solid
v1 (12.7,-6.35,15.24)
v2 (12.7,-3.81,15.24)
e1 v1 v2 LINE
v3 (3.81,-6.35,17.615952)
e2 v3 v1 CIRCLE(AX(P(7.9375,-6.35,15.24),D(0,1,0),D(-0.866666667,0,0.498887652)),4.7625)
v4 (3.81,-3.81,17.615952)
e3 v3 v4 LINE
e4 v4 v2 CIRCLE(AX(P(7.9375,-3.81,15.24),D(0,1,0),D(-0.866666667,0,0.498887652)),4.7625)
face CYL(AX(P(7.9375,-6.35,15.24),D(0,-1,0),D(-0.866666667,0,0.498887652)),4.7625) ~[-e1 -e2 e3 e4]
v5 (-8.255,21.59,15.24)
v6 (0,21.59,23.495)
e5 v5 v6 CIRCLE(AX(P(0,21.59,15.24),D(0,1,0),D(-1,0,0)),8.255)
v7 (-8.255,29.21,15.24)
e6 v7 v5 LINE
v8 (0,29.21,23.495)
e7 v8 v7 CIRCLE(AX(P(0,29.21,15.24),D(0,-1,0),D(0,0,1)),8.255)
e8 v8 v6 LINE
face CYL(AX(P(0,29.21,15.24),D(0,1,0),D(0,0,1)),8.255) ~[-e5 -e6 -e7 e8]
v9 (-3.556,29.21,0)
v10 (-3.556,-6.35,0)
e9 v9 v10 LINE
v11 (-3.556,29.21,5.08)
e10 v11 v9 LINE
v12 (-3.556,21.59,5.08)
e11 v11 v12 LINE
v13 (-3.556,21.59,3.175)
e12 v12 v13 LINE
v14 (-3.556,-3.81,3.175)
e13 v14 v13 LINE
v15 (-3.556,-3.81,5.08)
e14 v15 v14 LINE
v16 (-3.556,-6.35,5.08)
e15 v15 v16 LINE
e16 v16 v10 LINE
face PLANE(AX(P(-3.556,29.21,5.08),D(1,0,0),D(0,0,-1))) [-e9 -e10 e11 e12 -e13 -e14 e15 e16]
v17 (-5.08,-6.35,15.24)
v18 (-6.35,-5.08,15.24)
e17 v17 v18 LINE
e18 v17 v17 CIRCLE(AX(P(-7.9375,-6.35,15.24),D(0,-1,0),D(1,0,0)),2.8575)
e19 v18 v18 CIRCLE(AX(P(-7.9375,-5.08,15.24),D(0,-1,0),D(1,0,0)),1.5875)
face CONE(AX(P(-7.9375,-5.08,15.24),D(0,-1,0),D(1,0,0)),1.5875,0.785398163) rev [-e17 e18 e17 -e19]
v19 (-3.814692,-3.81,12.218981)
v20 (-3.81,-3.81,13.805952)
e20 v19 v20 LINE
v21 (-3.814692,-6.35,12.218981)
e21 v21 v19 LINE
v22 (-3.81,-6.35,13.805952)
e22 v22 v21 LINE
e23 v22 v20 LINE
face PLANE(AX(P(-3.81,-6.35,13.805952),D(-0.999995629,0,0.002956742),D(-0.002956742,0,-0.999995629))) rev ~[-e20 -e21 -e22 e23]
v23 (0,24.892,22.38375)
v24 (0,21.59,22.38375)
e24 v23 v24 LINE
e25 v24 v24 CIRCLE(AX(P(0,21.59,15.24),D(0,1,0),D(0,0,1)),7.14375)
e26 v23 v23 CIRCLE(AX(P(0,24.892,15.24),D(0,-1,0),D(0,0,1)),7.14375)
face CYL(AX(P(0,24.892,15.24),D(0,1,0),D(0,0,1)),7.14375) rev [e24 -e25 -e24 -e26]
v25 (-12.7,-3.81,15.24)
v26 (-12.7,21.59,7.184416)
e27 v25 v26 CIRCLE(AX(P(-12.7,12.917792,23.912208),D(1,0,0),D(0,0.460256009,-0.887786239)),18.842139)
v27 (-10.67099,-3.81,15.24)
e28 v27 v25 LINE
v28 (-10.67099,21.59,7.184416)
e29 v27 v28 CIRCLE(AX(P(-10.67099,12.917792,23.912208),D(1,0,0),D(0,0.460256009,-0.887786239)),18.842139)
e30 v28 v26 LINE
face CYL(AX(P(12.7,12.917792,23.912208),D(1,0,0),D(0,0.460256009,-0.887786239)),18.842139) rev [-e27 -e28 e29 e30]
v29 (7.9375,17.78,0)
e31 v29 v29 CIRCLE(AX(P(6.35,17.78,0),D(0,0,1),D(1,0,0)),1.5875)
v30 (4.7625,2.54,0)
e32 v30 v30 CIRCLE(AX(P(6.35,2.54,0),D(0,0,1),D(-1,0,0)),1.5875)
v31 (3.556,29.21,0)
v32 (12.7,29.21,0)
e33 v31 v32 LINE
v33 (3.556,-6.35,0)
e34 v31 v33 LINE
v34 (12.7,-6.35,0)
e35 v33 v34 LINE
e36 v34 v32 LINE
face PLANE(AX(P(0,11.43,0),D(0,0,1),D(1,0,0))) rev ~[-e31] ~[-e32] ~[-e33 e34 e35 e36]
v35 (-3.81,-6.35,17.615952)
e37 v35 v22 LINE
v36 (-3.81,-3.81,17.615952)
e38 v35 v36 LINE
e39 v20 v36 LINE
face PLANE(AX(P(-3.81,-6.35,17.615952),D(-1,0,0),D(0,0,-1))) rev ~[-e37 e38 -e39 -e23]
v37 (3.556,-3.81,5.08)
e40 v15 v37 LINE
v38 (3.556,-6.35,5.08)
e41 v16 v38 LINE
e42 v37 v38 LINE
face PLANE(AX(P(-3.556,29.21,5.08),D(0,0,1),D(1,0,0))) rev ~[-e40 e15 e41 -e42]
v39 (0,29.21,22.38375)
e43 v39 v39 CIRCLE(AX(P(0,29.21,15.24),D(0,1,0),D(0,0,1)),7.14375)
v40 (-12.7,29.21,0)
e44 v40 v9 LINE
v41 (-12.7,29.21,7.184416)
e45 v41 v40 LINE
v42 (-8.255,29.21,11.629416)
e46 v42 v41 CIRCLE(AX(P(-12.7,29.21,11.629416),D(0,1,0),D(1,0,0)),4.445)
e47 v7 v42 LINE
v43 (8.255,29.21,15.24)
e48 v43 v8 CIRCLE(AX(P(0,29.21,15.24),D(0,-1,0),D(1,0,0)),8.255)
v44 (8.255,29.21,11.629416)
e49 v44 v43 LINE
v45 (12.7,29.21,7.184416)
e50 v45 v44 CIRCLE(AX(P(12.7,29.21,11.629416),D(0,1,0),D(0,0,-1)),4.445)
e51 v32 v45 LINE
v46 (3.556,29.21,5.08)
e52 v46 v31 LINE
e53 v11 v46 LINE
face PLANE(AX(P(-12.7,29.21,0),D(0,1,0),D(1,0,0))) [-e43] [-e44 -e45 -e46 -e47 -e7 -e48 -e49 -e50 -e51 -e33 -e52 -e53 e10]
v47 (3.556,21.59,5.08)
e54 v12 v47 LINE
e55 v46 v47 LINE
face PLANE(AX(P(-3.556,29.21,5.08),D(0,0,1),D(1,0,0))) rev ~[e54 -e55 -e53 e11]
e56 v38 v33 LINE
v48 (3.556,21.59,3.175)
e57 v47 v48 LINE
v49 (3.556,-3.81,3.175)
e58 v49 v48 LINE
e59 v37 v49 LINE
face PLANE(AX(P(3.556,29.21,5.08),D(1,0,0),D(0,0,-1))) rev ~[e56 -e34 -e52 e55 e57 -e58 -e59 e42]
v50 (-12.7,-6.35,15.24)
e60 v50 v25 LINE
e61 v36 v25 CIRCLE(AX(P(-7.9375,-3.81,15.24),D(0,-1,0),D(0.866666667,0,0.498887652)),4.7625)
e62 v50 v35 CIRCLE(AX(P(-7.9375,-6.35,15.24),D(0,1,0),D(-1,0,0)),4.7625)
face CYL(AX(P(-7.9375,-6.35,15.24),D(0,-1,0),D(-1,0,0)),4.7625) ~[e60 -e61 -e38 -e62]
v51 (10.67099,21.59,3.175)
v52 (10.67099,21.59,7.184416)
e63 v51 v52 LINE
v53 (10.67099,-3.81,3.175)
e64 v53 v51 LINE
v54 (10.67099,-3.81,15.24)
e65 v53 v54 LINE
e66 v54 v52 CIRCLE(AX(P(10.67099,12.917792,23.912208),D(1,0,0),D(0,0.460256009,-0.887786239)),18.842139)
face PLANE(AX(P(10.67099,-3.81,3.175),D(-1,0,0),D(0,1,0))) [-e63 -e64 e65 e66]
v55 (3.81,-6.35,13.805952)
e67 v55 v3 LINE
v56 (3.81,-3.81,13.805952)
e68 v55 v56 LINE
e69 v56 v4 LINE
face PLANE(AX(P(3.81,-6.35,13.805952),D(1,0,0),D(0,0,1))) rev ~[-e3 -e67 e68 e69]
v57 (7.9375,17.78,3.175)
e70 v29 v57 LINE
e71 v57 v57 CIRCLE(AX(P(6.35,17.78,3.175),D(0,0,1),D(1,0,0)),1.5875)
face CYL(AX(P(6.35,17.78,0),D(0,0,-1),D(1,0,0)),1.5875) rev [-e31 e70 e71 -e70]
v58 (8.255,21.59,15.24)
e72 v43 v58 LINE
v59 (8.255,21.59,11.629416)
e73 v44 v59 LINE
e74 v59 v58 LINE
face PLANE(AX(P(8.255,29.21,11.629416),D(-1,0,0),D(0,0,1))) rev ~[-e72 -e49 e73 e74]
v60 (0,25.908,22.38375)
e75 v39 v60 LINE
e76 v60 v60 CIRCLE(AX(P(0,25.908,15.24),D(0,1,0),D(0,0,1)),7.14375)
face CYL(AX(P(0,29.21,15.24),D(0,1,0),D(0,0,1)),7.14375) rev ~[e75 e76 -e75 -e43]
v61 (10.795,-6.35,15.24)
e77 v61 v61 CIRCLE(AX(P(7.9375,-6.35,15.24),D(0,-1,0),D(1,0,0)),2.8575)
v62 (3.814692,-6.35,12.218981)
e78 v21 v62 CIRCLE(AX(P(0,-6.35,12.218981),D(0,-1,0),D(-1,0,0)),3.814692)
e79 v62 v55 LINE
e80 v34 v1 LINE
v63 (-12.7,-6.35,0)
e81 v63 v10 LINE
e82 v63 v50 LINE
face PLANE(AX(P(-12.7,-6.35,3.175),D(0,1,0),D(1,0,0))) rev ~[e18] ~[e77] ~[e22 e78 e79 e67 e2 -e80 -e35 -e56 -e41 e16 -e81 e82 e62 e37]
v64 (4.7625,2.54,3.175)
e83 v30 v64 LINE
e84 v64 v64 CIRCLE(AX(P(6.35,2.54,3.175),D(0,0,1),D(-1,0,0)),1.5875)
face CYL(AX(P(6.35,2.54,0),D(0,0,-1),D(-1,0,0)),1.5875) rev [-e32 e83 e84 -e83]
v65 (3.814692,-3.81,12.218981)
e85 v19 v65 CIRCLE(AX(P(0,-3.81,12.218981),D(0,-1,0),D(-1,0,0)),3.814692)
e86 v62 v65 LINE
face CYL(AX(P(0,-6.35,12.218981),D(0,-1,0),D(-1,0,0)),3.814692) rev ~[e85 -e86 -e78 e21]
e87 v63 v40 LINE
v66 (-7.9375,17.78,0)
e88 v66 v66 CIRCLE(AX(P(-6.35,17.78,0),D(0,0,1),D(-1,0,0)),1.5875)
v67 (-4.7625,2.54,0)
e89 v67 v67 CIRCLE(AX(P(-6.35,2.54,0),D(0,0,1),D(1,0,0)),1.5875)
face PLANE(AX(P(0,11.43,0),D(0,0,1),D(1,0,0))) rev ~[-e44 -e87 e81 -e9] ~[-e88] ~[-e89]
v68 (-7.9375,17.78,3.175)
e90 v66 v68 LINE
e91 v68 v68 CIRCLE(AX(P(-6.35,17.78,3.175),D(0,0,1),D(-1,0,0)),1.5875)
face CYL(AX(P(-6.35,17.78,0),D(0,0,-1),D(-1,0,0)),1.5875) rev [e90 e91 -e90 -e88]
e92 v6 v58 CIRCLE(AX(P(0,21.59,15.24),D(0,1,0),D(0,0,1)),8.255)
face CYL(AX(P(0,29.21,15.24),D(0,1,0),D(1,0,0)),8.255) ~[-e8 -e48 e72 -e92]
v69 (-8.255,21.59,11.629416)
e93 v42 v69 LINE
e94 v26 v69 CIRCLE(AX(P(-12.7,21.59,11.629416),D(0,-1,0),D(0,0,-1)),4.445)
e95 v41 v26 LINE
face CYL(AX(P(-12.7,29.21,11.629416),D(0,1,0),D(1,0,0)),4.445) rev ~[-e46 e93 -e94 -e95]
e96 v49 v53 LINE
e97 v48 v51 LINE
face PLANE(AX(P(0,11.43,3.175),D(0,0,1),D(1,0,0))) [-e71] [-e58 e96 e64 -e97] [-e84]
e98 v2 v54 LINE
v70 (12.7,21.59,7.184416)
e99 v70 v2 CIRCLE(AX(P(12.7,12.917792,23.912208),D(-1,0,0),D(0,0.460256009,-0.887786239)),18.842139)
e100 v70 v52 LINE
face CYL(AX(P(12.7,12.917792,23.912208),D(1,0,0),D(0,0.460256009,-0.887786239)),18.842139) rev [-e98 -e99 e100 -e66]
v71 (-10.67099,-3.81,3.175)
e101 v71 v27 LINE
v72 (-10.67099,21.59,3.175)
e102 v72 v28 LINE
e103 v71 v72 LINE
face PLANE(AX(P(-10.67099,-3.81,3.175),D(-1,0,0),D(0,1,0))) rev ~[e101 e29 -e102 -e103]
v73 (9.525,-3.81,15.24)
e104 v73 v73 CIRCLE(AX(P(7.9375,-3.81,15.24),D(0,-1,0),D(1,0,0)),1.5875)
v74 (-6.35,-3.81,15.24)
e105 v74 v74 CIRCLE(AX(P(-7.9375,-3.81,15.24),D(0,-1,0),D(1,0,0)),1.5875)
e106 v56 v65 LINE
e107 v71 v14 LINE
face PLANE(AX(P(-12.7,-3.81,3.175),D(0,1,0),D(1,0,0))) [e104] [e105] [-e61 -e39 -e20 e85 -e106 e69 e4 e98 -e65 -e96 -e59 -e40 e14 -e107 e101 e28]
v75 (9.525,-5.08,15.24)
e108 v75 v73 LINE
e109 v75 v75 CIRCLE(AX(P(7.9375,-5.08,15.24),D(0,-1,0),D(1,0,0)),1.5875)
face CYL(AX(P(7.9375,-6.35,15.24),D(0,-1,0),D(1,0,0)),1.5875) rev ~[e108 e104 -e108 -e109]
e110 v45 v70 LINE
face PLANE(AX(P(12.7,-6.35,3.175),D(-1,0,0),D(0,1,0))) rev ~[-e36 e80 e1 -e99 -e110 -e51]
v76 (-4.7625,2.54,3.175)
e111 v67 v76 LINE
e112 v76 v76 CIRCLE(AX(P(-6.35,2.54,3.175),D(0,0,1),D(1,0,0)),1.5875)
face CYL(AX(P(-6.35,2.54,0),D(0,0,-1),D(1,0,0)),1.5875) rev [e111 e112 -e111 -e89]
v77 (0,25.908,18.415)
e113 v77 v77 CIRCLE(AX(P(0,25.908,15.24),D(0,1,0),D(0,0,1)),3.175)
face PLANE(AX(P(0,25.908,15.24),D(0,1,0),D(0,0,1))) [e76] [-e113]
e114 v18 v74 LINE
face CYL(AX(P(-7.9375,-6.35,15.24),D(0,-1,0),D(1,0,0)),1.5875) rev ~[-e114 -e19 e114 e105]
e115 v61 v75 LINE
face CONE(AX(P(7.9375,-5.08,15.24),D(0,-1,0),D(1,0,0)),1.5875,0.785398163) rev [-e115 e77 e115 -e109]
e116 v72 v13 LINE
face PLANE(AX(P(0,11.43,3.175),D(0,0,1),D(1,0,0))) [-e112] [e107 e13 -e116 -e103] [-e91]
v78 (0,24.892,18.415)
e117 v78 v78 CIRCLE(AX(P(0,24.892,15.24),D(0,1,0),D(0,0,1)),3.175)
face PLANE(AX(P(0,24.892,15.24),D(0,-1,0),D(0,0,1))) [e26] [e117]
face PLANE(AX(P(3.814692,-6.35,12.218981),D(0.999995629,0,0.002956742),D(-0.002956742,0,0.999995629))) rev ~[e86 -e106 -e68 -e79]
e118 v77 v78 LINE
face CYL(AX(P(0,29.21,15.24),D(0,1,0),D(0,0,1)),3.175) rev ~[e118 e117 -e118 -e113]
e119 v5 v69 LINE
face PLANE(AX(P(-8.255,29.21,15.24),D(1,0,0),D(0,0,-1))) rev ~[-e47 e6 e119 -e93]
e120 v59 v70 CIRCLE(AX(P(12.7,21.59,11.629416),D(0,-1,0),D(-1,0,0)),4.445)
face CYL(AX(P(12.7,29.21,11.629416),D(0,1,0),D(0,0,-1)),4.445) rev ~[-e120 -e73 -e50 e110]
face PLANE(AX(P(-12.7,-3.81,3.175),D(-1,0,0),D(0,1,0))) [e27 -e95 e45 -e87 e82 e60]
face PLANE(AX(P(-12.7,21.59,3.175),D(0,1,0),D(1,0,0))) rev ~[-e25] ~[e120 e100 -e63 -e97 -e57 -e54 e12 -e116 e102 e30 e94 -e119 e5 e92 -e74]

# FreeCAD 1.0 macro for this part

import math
import FreeCAD as App
import Part
import Sketcher

V = App.Vector
Q = App.Units.Quantity


def edges_at(feature, points):
    """Names of the edges that pass closest to the given points."""
    edges = feature.Shape.Edges
    near = lambda p: min(range(len(edges)), key=lambda i: edges[i].distToShape(Part.Vertex(*p))[0])
    return sorted({f"Edge{near(p) + 1}" for p in points})

doc = App.newDocument("Part")
body = doc.addObject("PartDesign::Body", "Body")

# Sketch on XY plane
sketch1 = doc.addObject("Sketcher::SketchObject", "Sketch")
body.addObject(sketch1)
sketch1.AttachmentSupport = (doc.XY_Plane, [""])
sketch1.MapMode = "FlatFace"
sketch1.addGeometry(Part.LineSegment(V(-12.7, 29.21, 0), V(-12.7, -6.35, 0)), False)
sketch1.addGeometry(Part.LineSegment(V(-12.7, -6.35, 0), V(12.7, -6.35, 0)), False)
sketch1.addGeometry(Part.LineSegment(V(12.7, -6.35, 0), V(12.7, 29.21, 0)), False)
sketch1.addGeometry(Part.LineSegment(V(12.7, 29.21, 0), V(-12.7, 29.21, 0)), False)
sketch1.addGeometry(Part.Circle(V(-6.35, 2.54, 0), V(0, 0, 1), 1.5875), False)
sketch1.addGeometry(Part.Circle(V(6.35, 2.54, 0), V(0, 0, 1), 1.5875), False)
sketch1.addGeometry(Part.Circle(V(-6.35, 17.78, 0), V(0, 0, 1), 1.5875), False)
sketch1.addGeometry(Part.Circle(V(6.35, 17.78, 0), V(0, 0, 1), 1.5875), False)
sketch1.addConstraint(Sketcher.Constraint("Coincident", 0, 2, 1, 1))
sketch1.addConstraint(Sketcher.Constraint("Coincident", 1, 2, 2, 1))
sketch1.addConstraint(Sketcher.Constraint("Coincident", 2, 2, 3, 1))
sketch1.addConstraint(Sketcher.Constraint("Coincident", 3, 2, 0, 1))
sketch1.addConstraint(Sketcher.Constraint("Vertical", 0))
sketch1.addConstraint(Sketcher.Constraint("Horizontal", 1))
sketch1.addConstraint(Sketcher.Constraint("Vertical", 2))
sketch1.addConstraint(Sketcher.Constraint("Horizontal", 3))
sketch1.addConstraint(Sketcher.Constraint("Equal", 4, 5))
sketch1.addConstraint(Sketcher.Constraint("Equal", 5, 6))
sketch1.addConstraint(Sketcher.Constraint("Equal", 6, 7))
sketch1.addConstraint(Sketcher.Constraint("Symmetric", 4, 3, 5, 3, -2))
sketch1.addConstraint(Sketcher.Constraint("Symmetric", 6, 3, 7, 3, -2))
sketch1.addConstraint(Sketcher.Constraint("Vertical", 4, 3, 6, 3))
sketch1.addConstraint(Sketcher.Constraint("DistanceX", 1, 1, 1, 2, Q("1 in")))
sketch1.addConstraint(Sketcher.Constraint("Diameter", 4, Q("0.125 in")))
sketch1.addConstraint(Sketcher.Constraint("DistanceY", 0, 2, 0, 1, Q("1.4 in")))
sketch1.addConstraint(Sketcher.Constraint("DistanceY", -1, 1, 4, 3, Q("0.1 in")))
sketch1.addConstraint(Sketcher.Constraint("DistanceY", -1, 1, 6, 3, Q("0.7 in")))
sketch1.addConstraint(Sketcher.Constraint("DistanceX", 0, 2, -1, 1, Q("0.5 in")))
sketch1.addConstraint(Sketcher.Constraint("DistanceX", 4, 3, 5, 3, Q("0.5 in")))
sketch1.addConstraint(Sketcher.Constraint("DistanceY", 0, 2, -1, 1, Q("0.25 in")))
pad1 = doc.addObject("PartDesign::Pad", "Pad")
body.addObject(pad1)
pad1.Profile = sketch1
pad1.Length = Q("0.125 in")

# Sketch on XY plane
sketch2 = doc.addObject("Sketcher::SketchObject", "Sketch001")
body.addObject(sketch2)
sketch2.AttachmentSupport = (doc.XY_Plane, [""])
sketch2.MapMode = "FlatFace"
sketch2.AttachmentOffset = App.Placement(V(0, 0, 0.125 * 25.4), App.Rotation())
sketch2.addGeometry(Part.LineSegment(V(-12.7, -3.81, 0), V(-12.7, -6.35, 0)), False)
sketch2.addGeometry(Part.LineSegment(V(-12.7, -6.35, 0), V(12.7, -6.35, 0)), False)
sketch2.addGeometry(Part.LineSegment(V(12.7, -6.35, 0), V(12.7, -3.81, 0)), False)
sketch2.addGeometry(Part.LineSegment(V(12.7, -3.81, 0), V(-12.7, -3.81, 0)), False)
sketch2.addGeometry(Part.LineSegment(V(-12.7, 29.21, 0), V(-12.7, 21.59, 0)), False)
sketch2.addGeometry(Part.LineSegment(V(-12.7, 21.59, 0), V(12.7, 21.59, 0)), False)
sketch2.addGeometry(Part.LineSegment(V(12.7, 21.59, 0), V(12.7, 29.21, 0)), False)
sketch2.addGeometry(Part.LineSegment(V(12.7, 29.21, 0), V(-12.7, 29.21, 0)), False)
sketch2.addConstraint(Sketcher.Constraint("Coincident", 0, 2, 1, 1))
sketch2.addConstraint(Sketcher.Constraint("Coincident", 1, 2, 2, 1))
sketch2.addConstraint(Sketcher.Constraint("Coincident", 2, 2, 3, 1))
sketch2.addConstraint(Sketcher.Constraint("Coincident", 3, 2, 0, 1))
sketch2.addConstraint(Sketcher.Constraint("Coincident", 4, 2, 5, 1))
sketch2.addConstraint(Sketcher.Constraint("Coincident", 5, 2, 6, 1))
sketch2.addConstraint(Sketcher.Constraint("Coincident", 6, 2, 7, 1))
sketch2.addConstraint(Sketcher.Constraint("Coincident", 7, 2, 4, 1))
sketch2.addConstraint(Sketcher.Constraint("Vertical", 0))
sketch2.addConstraint(Sketcher.Constraint("Horizontal", 1))
sketch2.addConstraint(Sketcher.Constraint("Vertical", 2))
sketch2.addConstraint(Sketcher.Constraint("Horizontal", 3))
sketch2.addConstraint(Sketcher.Constraint("Vertical", 4))
sketch2.addConstraint(Sketcher.Constraint("Horizontal", 5))
sketch2.addConstraint(Sketcher.Constraint("Vertical", 6))
sketch2.addConstraint(Sketcher.Constraint("Horizontal", 7))
sketch2.addConstraint(Sketcher.Constraint("Vertical", 3, 2, 4, 2))
sketch2.addConstraint(Sketcher.Constraint("Vertical", 2, 2, 5, 2))
sketch2.addConstraint(Sketcher.Constraint("DistanceX", 1, 1, 1, 2, Q("1 in")))
sketch2.addConstraint(Sketcher.Constraint("DistanceY", 0, 2, 0, 1, Q("0.1 in")))
sketch2.addConstraint(Sketcher.Constraint("DistanceY", 4, 2, 4, 1, Q("0.3 in")))
sketch2.addConstraint(Sketcher.Constraint("DistanceY", 3, 2, 4, 2, Q("1 in")))
sketch2.addConstraint(Sketcher.Constraint("DistanceX", 0, 2, -1, 1, Q("0.5 in")))
sketch2.addConstraint(Sketcher.Constraint("DistanceY", 0, 2, -1, 1, Q("0.25 in")))
pad2 = doc.addObject("PartDesign::Pad", "Pad001")
body.addObject(pad2)
pad2.Profile = sketch2
pad2.Length = Q("0.8 in")

# Sketch on XZ plane
sketch3 = doc.addObject("Sketcher::SketchObject", "Sketch002")
body.addObject(sketch3)
sketch3.AttachmentSupport = (doc.XZ_Plane, [""])
sketch3.MapMode = "FlatFace"
sketch3.AttachmentOffset = App.Placement(V(0, 0, 0.25 * 25.4), App.Rotation())
sketch3.addGeometry(Part.LineSegment(V(-3.81, 13.805952, 0), V(-3.814692, 12.218981, 0)), False)
sketch3.addGeometry(Part.ArcOfCircle(Part.Circle(V(0, 12.218981, 0), V(0, 0, 1), 3.814692), math.radians(180), math.radians(360)), False)
sketch3.addGeometry(Part.LineSegment(V(3.814692, 12.218981, 0), V(3.81, 13.805952, 0)), False)
sketch3.addGeometry(Part.LineSegment(V(3.81, 13.805952, 0), V(3.81, 17.615952, 0)), False)
sketch3.addGeometry(Part.ArcOfCircle(Part.Circle(V(7.9375, 15.24, 0), V(0, 0, 1), 4.7625), math.radians(0), math.radians(150.073565)), False)
sketch3.addGeometry(Part.LineSegment(V(12.7, 15.24, 0), V(12.7, 23.495, 0)), False)
sketch3.addGeometry(Part.LineSegment(V(12.7, 23.495, 0), V(-12.7, 23.495, 0)), False)
sketch3.addGeometry(Part.LineSegment(V(-12.7, 23.495, 0), V(-12.7, 15.24, 0)), False)
sketch3.addGeometry(Part.ArcOfCircle(Part.Circle(V(-7.9375, 15.24, 0), V(0, 0, 1), 4.7625), math.radians(29.926435), math.radians(180)), False)
sketch3.addGeometry(Part.LineSegment(V(-3.81, 17.615952, 0), V(-3.81, 13.805952, 0)), False)
sketch3.addGeometry(Part.Circle(V(-7.9375, 15.24, 0), V(0, 0, 1), 1.5875), False)
sketch3.addGeometry(Part.Circle(V(7.9375, 15.24, 0), V(0, 0, 1), 1.5875), False)
sketch3.addConstraint(Sketcher.Constraint("Coincident", 0, 2, 1, 1))
sketch3.addConstraint(Sketcher.Constraint("Coincident", 1, 2, 2, 1))
sketch3.addConstraint(Sketcher.Constraint("Coincident", 2, 2, 3, 1))
sketch3.addConstraint(Sketcher.Constraint("Coincident", 3, 2, 4, 2))
sketch3.addConstraint(Sketcher.Constraint("Tangent", 4, 1, 5, 1))
sketch3.addConstraint(Sketcher.Constraint("Coincident", 5, 2, 6, 1))
sketch3.addConstraint(Sketcher.Constraint("Coincident", 6, 2, 7, 1))
sketch3.addConstraint(Sketcher.Constraint("Tangent", 7, 2, 8, 2))
sketch3.addConstraint(Sketcher.Constraint("Coincident", 8, 1, 9, 1))
sketch3.addConstraint(Sketcher.Constraint("Coincident", 9, 2, 0, 1))
sketch3.addConstraint(Sketcher.Constraint("Vertical", 3))
sketch3.addConstraint(Sketcher.Constraint("Vertical", 5))
sketch3.addConstraint(Sketcher.Constraint("Horizontal", 6))
sketch3.addConstraint(Sketcher.Constraint("Vertical", 7))
sketch3.addConstraint(Sketcher.Constraint("Vertical", 9))
sketch3.addConstraint(Sketcher.Constraint("Coincident", 10, 3, 8, 3))
sketch3.addConstraint(Sketcher.Constraint("Coincident", 11, 3, 4, 3))
sketch3.addConstraint(Sketcher.Constraint("Equal", 4, 8))
sketch3.addConstraint(Sketcher.Constraint("Equal", 10, 11))
sketch3.addConstraint(Sketcher.Constraint("Symmetric", 4, 3, 8, 3, -2))
sketch3.addConstraint(Sketcher.Constraint("Symmetric", 0, 2, 1, 2, -2))
sketch3.addConstraint(Sketcher.Constraint("Symmetric", 2, 2, 9, 2, -2))
sketch3.addConstraint(Sketcher.Constraint("Horizontal", 1, 3, 0, 2))
sketch3.addConstraint(Sketcher.Constraint("DistanceX", 6, 2, 6, 1, Q("1 in")))
sketch3.addConstraint(Sketcher.Constraint("Diameter", 10, Q("0.125 in")))
sketch3.addConstraint(Sketcher.Constraint("Radius", 4, Q("0.1875 in")))
sketch3.addConstraint(Sketcher.Constraint("DistanceY", 3, 1, 3, 2, Q("0.15 in")))
sketch3.addConstraint(Sketcher.Constraint("DistanceY", -1, 1, 4, 3, Q("0.6 in")))
sketch3.addConstraint(Sketcher.Constraint("DistanceX", 8, 1, 3, 2, Q("0.3 in")))
sketch3.addConstraint(Sketcher.Constraint("DistanceY", 5, 1, 5, 2, Q("0.325 in")))
sketch3.addConstraint(Sketcher.Constraint("Radius", 1, Q("3.814692 mm")))
sketch3.addConstraint(Sketcher.Constraint("Distance", 0, Q("1.586978 mm")))
pocket1 = doc.addObject("PartDesign::Pocket", "Pocket")
body.addObject(pocket1)
pocket1.Profile = sketch3
pocket1.Length = 10
doc.recompute()

chamfer = doc.addObject("PartDesign::Chamfer", "Chamfer")
body.addObject(chamfer)
chamfer.Base = (pocket1, edges_at(pocket1, [(-9.525, -6.35, 15.24), (6.35, -6.35, 15.24)]))
chamfer.Size = Q("0.05 in")

# Sketch on XZ plane
sketch4 = doc.addObject("Sketcher::SketchObject", "Sketch003")
body.addObject(sketch4)
sketch4.AttachmentSupport = (doc.XZ_Plane, [""])
sketch4.MapMode = "FlatFace"
sketch4.AttachmentOffset = App.Placement(V(0, 0, -1.15 * 25.4), App.Rotation())
sketch4.addGeometry(Part.Circle(V(0, 15.24, 0), V(0, 0, 1), 3.175), False)
sketch4.addConstraint(Sketcher.Constraint("PointOnObject", 0, 3, -2))
sketch4.addConstraint(Sketcher.Constraint("Diameter", 0, Q("0.25 in")))
sketch4.addConstraint(Sketcher.Constraint("DistanceY", -1, 1, 0, 3, Q("0.6 in")))
pocket2 = doc.addObject("PartDesign::Pocket", "Pocket001")
body.addObject(pocket2)
pocket2.Profile = sketch4
pocket2.Length = Q("0.5 in")
pocket2.Reversed = True

# Sketch on XZ plane
sketch5 = doc.addObject("Sketcher::SketchObject", "Sketch004")
body.addObject(sketch5)
sketch5.AttachmentSupport = (doc.XZ_Plane, [""])
sketch5.MapMode = "FlatFace"
sketch5.AttachmentOffset = App.Placement(V(0, 0, -1.15 * 25.4), App.Rotation())
sketch5.addGeometry(Part.Circle(V(0, 15.24, 0), V(0, 0, 1), 7.14375), False)
sketch5.addConstraint(Sketcher.Constraint("PointOnObject", 0, 3, -2))
sketch5.addConstraint(Sketcher.Constraint("Diameter", 0, Q("0.5625 in")))
sketch5.addConstraint(Sketcher.Constraint("DistanceY", -1, 1, 0, 3, Q("0.6 in")))
pocket3 = doc.addObject("PartDesign::Pocket", "Pocket002")
body.addObject(pocket3)
pocket3.Profile = sketch5
pocket3.Length = Q("0.13 in")
pocket3.Reversed = True

# Sketch on XZ plane
sketch6 = doc.addObject("Sketcher::SketchObject", "Sketch005")
body.addObject(sketch6)
sketch6.AttachmentSupport = (doc.XZ_Plane, [""])
sketch6.MapMode = "FlatFace"
sketch6.AttachmentOffset = App.Placement(V(0, 0, -0.98 * 25.4), App.Rotation())
sketch6.addGeometry(Part.Circle(V(0, 15.24, 0), V(0, 0, 1), 7.14375), False)
sketch6.addConstraint(Sketcher.Constraint("PointOnObject", 0, 3, -2))
sketch6.addConstraint(Sketcher.Constraint("Diameter", 0, Q("0.5625 in")))
sketch6.addConstraint(Sketcher.Constraint("DistanceY", -1, 1, 0, 3, Q("0.6 in")))
pocket4 = doc.addObject("PartDesign::Pocket", "Pocket003")
body.addObject(pocket4)
pocket4.Profile = sketch6
pocket4.Length = Q("0.13 in")
pocket4.Reversed = True

# Sketch on XZ plane
sketch7 = doc.addObject("Sketcher::SketchObject", "Sketch006")
body.addObject(sketch7)
sketch7.AttachmentSupport = (doc.XZ_Plane, [""])
sketch7.MapMode = "FlatFace"
sketch7.AttachmentOffset = App.Placement(V(0, 0, -1.15 * 25.4), App.Rotation())
sketch7.addGeometry(Part.ArcOfCircle(Part.Circle(V(0, 15.24, 0), V(0, 0, 1), 8.255), math.radians(0), math.radians(90)), False)
sketch7.addGeometry(Part.LineSegment(V(0, 23.495, 0), V(12.7, 23.495, 0)), False)
sketch7.addGeometry(Part.LineSegment(V(12.7, 23.495, 0), V(12.7, 7.184416, 0)), False)
sketch7.addGeometry(Part.ArcOfCircle(Part.Circle(V(12.7, 11.629416, 0), V(0, 0, 1), 4.445), math.radians(180), math.radians(270)), False)
sketch7.addGeometry(Part.LineSegment(V(8.255, 11.629416, 0), V(8.255, 15.24, 0)), False)
sketch7.addGeometry(Part.ArcOfCircle(Part.Circle(V(0, 15.24, 0), V(0, 0, 1), 8.255), math.radians(90), math.radians(180)), False)
sketch7.addGeometry(Part.LineSegment(V(-8.255, 15.24, 0), V(-8.255, 11.629416, 0)), False)
sketch7.addGeometry(Part.ArcOfCircle(Part.Circle(V(-12.7, 11.629416, 0), V(0, 0, 1), 4.445), math.radians(-90), math.radians(0)), False)
sketch7.addGeometry(Part.LineSegment(V(-12.7, 7.184416, 0), V(-12.7, 23.495, 0)), False)
sketch7.addGeometry(Part.LineSegment(V(-12.7, 23.495, 0), V(0, 23.495, 0)), False)
sketch7.addConstraint(Sketcher.Constraint("Tangent", 0, 2, 1, 1))
sketch7.addConstraint(Sketcher.Constraint("Coincident", 1, 2, 2, 1))
sketch7.addConstraint(Sketcher.Constraint("Coincident", 2, 2, 3, 2))
sketch7.addConstraint(Sketcher.Constraint("Tangent", 3, 1, 4, 1))
sketch7.addConstraint(Sketcher.Constraint("Tangent", 4, 2, 0, 1))
sketch7.addConstraint(Sketcher.Constraint("Tangent", 5, 2, 6, 1))
sketch7.addConstraint(Sketcher.Constraint("Tangent", 6, 2, 7, 2))
sketch7.addConstraint(Sketcher.Constraint("Coincident", 7, 1, 8, 1))
sketch7.addConstraint(Sketcher.Constraint("Coincident", 8, 2, 9, 1))
sketch7.addConstraint(Sketcher.Constraint("Tangent", 9, 2, 5, 1))
sketch7.addConstraint(Sketcher.Constraint("Horizontal", 1))
sketch7.addConstraint(Sketcher.Constraint("Vertical", 2))
sketch7.addConstraint(Sketcher.Constraint("Vertical", 4))
sketch7.addConstraint(Sketcher.Constraint("Vertical", 6))
sketch7.addConstraint(Sketcher.Constraint("Vertical", 8))
sketch7.addConstraint(Sketcher.Constraint("Horizontal", 9))
sketch7.addConstraint(Sketcher.Constraint("Coincident", 5, 3, 0, 3))
sketch7.addConstraint(Sketcher.Constraint("Equal", 0, 5))
sketch7.addConstraint(Sketcher.Constraint("Equal", 3, 7))
sketch7.addConstraint(Sketcher.Constraint("Symmetric", 3, 3, 7, 3, -2))
sketch7.addConstraint(Sketcher.Constraint("Vertical", 3, 3, 1, 2))
sketch7.addConstraint(Sketcher.Constraint("Equal", 1, 9))
sketch7.addConstraint(Sketcher.Constraint("DistanceX", 1, 1, 1, 2, Q("0.5 in")))
sketch7.addConstraint(Sketcher.Constraint("Radius", 0, Q("0.325 in")))
sketch7.addConstraint(Sketcher.Constraint("DistanceY", -1, 1, 0, 3, Q("0.6 in")))
sketch7.addConstraint(Sketcher.Constraint("DistanceY", 2, 2, 2, 1, Q("16.310584 mm")))
pocket5 = doc.addObject("PartDesign::Pocket", "Pocket004")
body.addObject(pocket5)
pocket5.Profile = sketch7
pocket5.Length = Q("0.5 in")
pocket5.Reversed = True

# Sketch on XY plane
sketch8 = doc.addObject("Sketcher::SketchObject", "Sketch007")
body.addObject(sketch8)
sketch8.AttachmentSupport = (doc.XY_Plane, [""])
sketch8.MapMode = "FlatFace"
sketch8.AttachmentOffset = App.Placement(V(0, 0, 0.125 * 25.4), App.Rotation())
sketch8.addGeometry(Part.LineSegment(V(-12.7, 21.59, 0), V(-12.7, -3.81, 0)), False)
sketch8.addGeometry(Part.LineSegment(V(-12.7, -3.81, 0), V(-10.67099, -3.81, 0)), False)
sketch8.addGeometry(Part.LineSegment(V(-10.67099, -3.81, 0), V(-10.67099, 21.59, 0)), False)
sketch8.addGeometry(Part.LineSegment(V(-10.67099, 21.59, 0), V(-12.7, 21.59, 0)), False)
sketch8.addGeometry(Part.LineSegment(V(10.67099, 21.59, 0), V(10.67099, -3.81, 0)), False)
sketch8.addGeometry(Part.LineSegment(V(10.67099, -3.81, 0), V(12.7, -3.81, 0)), False)
sketch8.addGeometry(Part.LineSegment(V(12.7, -3.81, 0), V(12.7, 21.59, 0)), False)
sketch8.addGeometry(Part.LineSegment(V(12.7, 21.59, 0), V(10.67099, 21.59, 0)), False)
sketch8.addConstraint(Sketcher.Constraint("Coincident", 0, 2, 1, 1))
sketch8.addConstraint(Sketcher.Constraint("Coincident", 1, 2, 2, 1))
sketch8.addConstraint(Sketcher.Constraint("Coincident", 2, 2, 3, 1))
sketch8.addConstraint(Sketcher.Constraint("Coincident", 3, 2, 0, 1))
sketch8.addConstraint(Sketcher.Constraint("Coincident", 4, 2, 5, 1))
sketch8.addConstraint(Sketcher.Constraint("Coincident", 5, 2, 6, 1))
sketch8.addConstraint(Sketcher.Constraint("Coincident", 6, 2, 7, 1))
sketch8.addConstraint(Sketcher.Constraint("Coincident", 7, 2, 4, 1))
sketch8.addConstraint(Sketcher.Constraint("Vertical", 0))
sketch8.addConstraint(Sketcher.Constraint("Horizontal", 1))
sketch8.addConstraint(Sketcher.Constraint("Vertical", 2))
sketch8.addConstraint(Sketcher.Constraint("Horizontal", 3))
sketch8.addConstraint(Sketcher.Constraint("Vertical", 4))
sketch8.addConstraint(Sketcher.Constraint("Horizontal", 5))
sketch8.addConstraint(Sketcher.Constraint("Vertical", 6))
sketch8.addConstraint(Sketcher.Constraint("Horizontal", 7))
sketch8.addConstraint(Sketcher.Constraint("Symmetric", 1, 2, 4, 2, -2))
sketch8.addConstraint(Sketcher.Constraint("Symmetric", 3, 2, 6, 2, -2))
sketch8.addConstraint(Sketcher.Constraint("DistanceY", 0, 2, 0, 1, Q("1 in")))
sketch8.addConstraint(Sketcher.Constraint("DistanceX", 0, 2, 5, 2, Q("1 in")))
sketch8.addConstraint(Sketcher.Constraint("DistanceY", 0, 2, -1, 1, Q("0.15 in")))
sketch8.addConstraint(Sketcher.Constraint("DistanceX", 1, 1, 1, 2, Q("2.02901 mm")))
pad3 = doc.addObject("PartDesign::Pad", "Pad002")
body.addObject(pad3)
pad3.Profile = sketch8
pad3.Length = Q("0.5 in")

# Sketch on YZ plane
sketch9 = doc.addObject("Sketcher::SketchObject", "Sketch008")
body.addObject(sketch9)
sketch9.AttachmentSupport = (doc.YZ_Plane, [""])
sketch9.MapMode = "FlatFace"
sketch9.AttachmentOffset = App.Placement(V(0, 0, 0.5 * 25.4), App.Rotation())
sketch9.addGeometry(Part.ArcOfCircle(Part.Circle(V(12.917792, 23.912208, 0), V(0, 0, 1), 18.842139), math.radians(-152.596371), math.radians(-62.596371)), False)
sketch9.addGeometry(Part.LineSegment(V(21.59, 7.184416, 0), V(21.59, 15.875, 0)), False)
sketch9.addGeometry(Part.LineSegment(V(21.59, 15.875, 0), V(-3.81, 15.875, 0)), False)
sketch9.addGeometry(Part.LineSegment(V(-3.81, 15.875, 0), V(-3.81, 15.24, 0)), False)
sketch9.addConstraint(Sketcher.Constraint("Coincident", 0, 2, 1, 1))
sketch9.addConstraint(Sketcher.Constraint("Coincident", 1, 2, 2, 1))
sketch9.addConstraint(Sketcher.Constraint("Coincident", 2, 2, 3, 1))
sketch9.addConstraint(Sketcher.Constraint("Coincident", 3, 2, 0, 1))
sketch9.addConstraint(Sketcher.Constraint("Vertical", 1))
sketch9.addConstraint(Sketcher.Constraint("Horizontal", 2))
sketch9.addConstraint(Sketcher.Constraint("Vertical", 3))
sketch9.addConstraint(Sketcher.Constraint("DistanceX", 2, 2, 2, 1, Q("1 in")))
sketch9.addConstraint(Sketcher.Constraint("DistanceY", -1, 1, 3, 2, Q("0.6 in")))
sketch9.addConstraint(Sketcher.Constraint("DistanceY", 3, 2, 3, 1, Q("0.025 in")))
sketch9.addConstraint(Sketcher.Constraint("DistanceX", -1, 1, 0, 2, Q("0.85 in")))
sketch9.addConstraint(Sketcher.Constraint("Radius", 0, Q("18.842139 mm")))
sketch9.addConstraint(Sketcher.Constraint("DistanceY", 1, 1, 1, 2, Q("8.690584 mm")))
pocket6 = doc.addObject("PartDesign::Pocket", "Pocket005")
body.addObject(pocket6)
pocket6.Profile = sketch9
pocket6.Type = "ThroughAll"

# Sketch on XZ plane
sketch10 = doc.addObject("Sketcher::SketchObject", "Sketch009")
body.addObject(sketch10)
sketch10.AttachmentSupport = (doc.XZ_Plane, [""])
sketch10.MapMode = "FlatFace"
sketch10.AttachmentOffset = App.Placement(V(0, 0, -1.15 * 25.4), App.Rotation())
sketch10.addGeometry(Part.LineSegment(V(-3.556, 0, 0), V(-3.556, 5.08, 0)), False)
sketch10.addGeometry(Part.LineSegment(V(-3.556, 5.08, 0), V(3.556, 5.08, 0)), False)
sketch10.addGeometry(Part.LineSegment(V(3.556, 5.08, 0), V(3.556, 0, 0)), False)
sketch10.addGeometry(Part.LineSegment(V(3.556, 0, 0), V(-3.556, 0, 0)), False)
sketch10.addConstraint(Sketcher.Constraint("Coincident", 0, 2, 1, 1))
sketch10.addConstraint(Sketcher.Constraint("Coincident", 1, 2, 2, 1))
sketch10.addConstraint(Sketcher.Constraint("Coincident", 2, 2, 3, 1))
sketch10.addConstraint(Sketcher.Constraint("Coincident", 3, 2, 0, 1))
sketch10.addConstraint(Sketcher.Constraint("Vertical", 0))
sketch10.addConstraint(Sketcher.Constraint("Horizontal", 1))
sketch10.addConstraint(Sketcher.Constraint("Vertical", 2))
sketch10.addConstraint(Sketcher.Constraint("Horizontal", 3))
sketch10.addConstraint(Sketcher.Constraint("Symmetric", 2, 2, 3, 2, -1, 1))
sketch10.addConstraint(Sketcher.Constraint("DistanceY", 0, 1, 0, 2, Q("0.2 in")))
sketch10.addConstraint(Sketcher.Constraint("DistanceX", 1, 1, 1, 2, Q("0.28 in")))
pocket7 = doc.addObject("PartDesign::Pocket", "Pocket006")
body.addObject(pocket7)
pocket7.Profile = sketch10
pocket7.Type = "ThroughAll"
pocket7.Reversed = True

doc.recompute()
